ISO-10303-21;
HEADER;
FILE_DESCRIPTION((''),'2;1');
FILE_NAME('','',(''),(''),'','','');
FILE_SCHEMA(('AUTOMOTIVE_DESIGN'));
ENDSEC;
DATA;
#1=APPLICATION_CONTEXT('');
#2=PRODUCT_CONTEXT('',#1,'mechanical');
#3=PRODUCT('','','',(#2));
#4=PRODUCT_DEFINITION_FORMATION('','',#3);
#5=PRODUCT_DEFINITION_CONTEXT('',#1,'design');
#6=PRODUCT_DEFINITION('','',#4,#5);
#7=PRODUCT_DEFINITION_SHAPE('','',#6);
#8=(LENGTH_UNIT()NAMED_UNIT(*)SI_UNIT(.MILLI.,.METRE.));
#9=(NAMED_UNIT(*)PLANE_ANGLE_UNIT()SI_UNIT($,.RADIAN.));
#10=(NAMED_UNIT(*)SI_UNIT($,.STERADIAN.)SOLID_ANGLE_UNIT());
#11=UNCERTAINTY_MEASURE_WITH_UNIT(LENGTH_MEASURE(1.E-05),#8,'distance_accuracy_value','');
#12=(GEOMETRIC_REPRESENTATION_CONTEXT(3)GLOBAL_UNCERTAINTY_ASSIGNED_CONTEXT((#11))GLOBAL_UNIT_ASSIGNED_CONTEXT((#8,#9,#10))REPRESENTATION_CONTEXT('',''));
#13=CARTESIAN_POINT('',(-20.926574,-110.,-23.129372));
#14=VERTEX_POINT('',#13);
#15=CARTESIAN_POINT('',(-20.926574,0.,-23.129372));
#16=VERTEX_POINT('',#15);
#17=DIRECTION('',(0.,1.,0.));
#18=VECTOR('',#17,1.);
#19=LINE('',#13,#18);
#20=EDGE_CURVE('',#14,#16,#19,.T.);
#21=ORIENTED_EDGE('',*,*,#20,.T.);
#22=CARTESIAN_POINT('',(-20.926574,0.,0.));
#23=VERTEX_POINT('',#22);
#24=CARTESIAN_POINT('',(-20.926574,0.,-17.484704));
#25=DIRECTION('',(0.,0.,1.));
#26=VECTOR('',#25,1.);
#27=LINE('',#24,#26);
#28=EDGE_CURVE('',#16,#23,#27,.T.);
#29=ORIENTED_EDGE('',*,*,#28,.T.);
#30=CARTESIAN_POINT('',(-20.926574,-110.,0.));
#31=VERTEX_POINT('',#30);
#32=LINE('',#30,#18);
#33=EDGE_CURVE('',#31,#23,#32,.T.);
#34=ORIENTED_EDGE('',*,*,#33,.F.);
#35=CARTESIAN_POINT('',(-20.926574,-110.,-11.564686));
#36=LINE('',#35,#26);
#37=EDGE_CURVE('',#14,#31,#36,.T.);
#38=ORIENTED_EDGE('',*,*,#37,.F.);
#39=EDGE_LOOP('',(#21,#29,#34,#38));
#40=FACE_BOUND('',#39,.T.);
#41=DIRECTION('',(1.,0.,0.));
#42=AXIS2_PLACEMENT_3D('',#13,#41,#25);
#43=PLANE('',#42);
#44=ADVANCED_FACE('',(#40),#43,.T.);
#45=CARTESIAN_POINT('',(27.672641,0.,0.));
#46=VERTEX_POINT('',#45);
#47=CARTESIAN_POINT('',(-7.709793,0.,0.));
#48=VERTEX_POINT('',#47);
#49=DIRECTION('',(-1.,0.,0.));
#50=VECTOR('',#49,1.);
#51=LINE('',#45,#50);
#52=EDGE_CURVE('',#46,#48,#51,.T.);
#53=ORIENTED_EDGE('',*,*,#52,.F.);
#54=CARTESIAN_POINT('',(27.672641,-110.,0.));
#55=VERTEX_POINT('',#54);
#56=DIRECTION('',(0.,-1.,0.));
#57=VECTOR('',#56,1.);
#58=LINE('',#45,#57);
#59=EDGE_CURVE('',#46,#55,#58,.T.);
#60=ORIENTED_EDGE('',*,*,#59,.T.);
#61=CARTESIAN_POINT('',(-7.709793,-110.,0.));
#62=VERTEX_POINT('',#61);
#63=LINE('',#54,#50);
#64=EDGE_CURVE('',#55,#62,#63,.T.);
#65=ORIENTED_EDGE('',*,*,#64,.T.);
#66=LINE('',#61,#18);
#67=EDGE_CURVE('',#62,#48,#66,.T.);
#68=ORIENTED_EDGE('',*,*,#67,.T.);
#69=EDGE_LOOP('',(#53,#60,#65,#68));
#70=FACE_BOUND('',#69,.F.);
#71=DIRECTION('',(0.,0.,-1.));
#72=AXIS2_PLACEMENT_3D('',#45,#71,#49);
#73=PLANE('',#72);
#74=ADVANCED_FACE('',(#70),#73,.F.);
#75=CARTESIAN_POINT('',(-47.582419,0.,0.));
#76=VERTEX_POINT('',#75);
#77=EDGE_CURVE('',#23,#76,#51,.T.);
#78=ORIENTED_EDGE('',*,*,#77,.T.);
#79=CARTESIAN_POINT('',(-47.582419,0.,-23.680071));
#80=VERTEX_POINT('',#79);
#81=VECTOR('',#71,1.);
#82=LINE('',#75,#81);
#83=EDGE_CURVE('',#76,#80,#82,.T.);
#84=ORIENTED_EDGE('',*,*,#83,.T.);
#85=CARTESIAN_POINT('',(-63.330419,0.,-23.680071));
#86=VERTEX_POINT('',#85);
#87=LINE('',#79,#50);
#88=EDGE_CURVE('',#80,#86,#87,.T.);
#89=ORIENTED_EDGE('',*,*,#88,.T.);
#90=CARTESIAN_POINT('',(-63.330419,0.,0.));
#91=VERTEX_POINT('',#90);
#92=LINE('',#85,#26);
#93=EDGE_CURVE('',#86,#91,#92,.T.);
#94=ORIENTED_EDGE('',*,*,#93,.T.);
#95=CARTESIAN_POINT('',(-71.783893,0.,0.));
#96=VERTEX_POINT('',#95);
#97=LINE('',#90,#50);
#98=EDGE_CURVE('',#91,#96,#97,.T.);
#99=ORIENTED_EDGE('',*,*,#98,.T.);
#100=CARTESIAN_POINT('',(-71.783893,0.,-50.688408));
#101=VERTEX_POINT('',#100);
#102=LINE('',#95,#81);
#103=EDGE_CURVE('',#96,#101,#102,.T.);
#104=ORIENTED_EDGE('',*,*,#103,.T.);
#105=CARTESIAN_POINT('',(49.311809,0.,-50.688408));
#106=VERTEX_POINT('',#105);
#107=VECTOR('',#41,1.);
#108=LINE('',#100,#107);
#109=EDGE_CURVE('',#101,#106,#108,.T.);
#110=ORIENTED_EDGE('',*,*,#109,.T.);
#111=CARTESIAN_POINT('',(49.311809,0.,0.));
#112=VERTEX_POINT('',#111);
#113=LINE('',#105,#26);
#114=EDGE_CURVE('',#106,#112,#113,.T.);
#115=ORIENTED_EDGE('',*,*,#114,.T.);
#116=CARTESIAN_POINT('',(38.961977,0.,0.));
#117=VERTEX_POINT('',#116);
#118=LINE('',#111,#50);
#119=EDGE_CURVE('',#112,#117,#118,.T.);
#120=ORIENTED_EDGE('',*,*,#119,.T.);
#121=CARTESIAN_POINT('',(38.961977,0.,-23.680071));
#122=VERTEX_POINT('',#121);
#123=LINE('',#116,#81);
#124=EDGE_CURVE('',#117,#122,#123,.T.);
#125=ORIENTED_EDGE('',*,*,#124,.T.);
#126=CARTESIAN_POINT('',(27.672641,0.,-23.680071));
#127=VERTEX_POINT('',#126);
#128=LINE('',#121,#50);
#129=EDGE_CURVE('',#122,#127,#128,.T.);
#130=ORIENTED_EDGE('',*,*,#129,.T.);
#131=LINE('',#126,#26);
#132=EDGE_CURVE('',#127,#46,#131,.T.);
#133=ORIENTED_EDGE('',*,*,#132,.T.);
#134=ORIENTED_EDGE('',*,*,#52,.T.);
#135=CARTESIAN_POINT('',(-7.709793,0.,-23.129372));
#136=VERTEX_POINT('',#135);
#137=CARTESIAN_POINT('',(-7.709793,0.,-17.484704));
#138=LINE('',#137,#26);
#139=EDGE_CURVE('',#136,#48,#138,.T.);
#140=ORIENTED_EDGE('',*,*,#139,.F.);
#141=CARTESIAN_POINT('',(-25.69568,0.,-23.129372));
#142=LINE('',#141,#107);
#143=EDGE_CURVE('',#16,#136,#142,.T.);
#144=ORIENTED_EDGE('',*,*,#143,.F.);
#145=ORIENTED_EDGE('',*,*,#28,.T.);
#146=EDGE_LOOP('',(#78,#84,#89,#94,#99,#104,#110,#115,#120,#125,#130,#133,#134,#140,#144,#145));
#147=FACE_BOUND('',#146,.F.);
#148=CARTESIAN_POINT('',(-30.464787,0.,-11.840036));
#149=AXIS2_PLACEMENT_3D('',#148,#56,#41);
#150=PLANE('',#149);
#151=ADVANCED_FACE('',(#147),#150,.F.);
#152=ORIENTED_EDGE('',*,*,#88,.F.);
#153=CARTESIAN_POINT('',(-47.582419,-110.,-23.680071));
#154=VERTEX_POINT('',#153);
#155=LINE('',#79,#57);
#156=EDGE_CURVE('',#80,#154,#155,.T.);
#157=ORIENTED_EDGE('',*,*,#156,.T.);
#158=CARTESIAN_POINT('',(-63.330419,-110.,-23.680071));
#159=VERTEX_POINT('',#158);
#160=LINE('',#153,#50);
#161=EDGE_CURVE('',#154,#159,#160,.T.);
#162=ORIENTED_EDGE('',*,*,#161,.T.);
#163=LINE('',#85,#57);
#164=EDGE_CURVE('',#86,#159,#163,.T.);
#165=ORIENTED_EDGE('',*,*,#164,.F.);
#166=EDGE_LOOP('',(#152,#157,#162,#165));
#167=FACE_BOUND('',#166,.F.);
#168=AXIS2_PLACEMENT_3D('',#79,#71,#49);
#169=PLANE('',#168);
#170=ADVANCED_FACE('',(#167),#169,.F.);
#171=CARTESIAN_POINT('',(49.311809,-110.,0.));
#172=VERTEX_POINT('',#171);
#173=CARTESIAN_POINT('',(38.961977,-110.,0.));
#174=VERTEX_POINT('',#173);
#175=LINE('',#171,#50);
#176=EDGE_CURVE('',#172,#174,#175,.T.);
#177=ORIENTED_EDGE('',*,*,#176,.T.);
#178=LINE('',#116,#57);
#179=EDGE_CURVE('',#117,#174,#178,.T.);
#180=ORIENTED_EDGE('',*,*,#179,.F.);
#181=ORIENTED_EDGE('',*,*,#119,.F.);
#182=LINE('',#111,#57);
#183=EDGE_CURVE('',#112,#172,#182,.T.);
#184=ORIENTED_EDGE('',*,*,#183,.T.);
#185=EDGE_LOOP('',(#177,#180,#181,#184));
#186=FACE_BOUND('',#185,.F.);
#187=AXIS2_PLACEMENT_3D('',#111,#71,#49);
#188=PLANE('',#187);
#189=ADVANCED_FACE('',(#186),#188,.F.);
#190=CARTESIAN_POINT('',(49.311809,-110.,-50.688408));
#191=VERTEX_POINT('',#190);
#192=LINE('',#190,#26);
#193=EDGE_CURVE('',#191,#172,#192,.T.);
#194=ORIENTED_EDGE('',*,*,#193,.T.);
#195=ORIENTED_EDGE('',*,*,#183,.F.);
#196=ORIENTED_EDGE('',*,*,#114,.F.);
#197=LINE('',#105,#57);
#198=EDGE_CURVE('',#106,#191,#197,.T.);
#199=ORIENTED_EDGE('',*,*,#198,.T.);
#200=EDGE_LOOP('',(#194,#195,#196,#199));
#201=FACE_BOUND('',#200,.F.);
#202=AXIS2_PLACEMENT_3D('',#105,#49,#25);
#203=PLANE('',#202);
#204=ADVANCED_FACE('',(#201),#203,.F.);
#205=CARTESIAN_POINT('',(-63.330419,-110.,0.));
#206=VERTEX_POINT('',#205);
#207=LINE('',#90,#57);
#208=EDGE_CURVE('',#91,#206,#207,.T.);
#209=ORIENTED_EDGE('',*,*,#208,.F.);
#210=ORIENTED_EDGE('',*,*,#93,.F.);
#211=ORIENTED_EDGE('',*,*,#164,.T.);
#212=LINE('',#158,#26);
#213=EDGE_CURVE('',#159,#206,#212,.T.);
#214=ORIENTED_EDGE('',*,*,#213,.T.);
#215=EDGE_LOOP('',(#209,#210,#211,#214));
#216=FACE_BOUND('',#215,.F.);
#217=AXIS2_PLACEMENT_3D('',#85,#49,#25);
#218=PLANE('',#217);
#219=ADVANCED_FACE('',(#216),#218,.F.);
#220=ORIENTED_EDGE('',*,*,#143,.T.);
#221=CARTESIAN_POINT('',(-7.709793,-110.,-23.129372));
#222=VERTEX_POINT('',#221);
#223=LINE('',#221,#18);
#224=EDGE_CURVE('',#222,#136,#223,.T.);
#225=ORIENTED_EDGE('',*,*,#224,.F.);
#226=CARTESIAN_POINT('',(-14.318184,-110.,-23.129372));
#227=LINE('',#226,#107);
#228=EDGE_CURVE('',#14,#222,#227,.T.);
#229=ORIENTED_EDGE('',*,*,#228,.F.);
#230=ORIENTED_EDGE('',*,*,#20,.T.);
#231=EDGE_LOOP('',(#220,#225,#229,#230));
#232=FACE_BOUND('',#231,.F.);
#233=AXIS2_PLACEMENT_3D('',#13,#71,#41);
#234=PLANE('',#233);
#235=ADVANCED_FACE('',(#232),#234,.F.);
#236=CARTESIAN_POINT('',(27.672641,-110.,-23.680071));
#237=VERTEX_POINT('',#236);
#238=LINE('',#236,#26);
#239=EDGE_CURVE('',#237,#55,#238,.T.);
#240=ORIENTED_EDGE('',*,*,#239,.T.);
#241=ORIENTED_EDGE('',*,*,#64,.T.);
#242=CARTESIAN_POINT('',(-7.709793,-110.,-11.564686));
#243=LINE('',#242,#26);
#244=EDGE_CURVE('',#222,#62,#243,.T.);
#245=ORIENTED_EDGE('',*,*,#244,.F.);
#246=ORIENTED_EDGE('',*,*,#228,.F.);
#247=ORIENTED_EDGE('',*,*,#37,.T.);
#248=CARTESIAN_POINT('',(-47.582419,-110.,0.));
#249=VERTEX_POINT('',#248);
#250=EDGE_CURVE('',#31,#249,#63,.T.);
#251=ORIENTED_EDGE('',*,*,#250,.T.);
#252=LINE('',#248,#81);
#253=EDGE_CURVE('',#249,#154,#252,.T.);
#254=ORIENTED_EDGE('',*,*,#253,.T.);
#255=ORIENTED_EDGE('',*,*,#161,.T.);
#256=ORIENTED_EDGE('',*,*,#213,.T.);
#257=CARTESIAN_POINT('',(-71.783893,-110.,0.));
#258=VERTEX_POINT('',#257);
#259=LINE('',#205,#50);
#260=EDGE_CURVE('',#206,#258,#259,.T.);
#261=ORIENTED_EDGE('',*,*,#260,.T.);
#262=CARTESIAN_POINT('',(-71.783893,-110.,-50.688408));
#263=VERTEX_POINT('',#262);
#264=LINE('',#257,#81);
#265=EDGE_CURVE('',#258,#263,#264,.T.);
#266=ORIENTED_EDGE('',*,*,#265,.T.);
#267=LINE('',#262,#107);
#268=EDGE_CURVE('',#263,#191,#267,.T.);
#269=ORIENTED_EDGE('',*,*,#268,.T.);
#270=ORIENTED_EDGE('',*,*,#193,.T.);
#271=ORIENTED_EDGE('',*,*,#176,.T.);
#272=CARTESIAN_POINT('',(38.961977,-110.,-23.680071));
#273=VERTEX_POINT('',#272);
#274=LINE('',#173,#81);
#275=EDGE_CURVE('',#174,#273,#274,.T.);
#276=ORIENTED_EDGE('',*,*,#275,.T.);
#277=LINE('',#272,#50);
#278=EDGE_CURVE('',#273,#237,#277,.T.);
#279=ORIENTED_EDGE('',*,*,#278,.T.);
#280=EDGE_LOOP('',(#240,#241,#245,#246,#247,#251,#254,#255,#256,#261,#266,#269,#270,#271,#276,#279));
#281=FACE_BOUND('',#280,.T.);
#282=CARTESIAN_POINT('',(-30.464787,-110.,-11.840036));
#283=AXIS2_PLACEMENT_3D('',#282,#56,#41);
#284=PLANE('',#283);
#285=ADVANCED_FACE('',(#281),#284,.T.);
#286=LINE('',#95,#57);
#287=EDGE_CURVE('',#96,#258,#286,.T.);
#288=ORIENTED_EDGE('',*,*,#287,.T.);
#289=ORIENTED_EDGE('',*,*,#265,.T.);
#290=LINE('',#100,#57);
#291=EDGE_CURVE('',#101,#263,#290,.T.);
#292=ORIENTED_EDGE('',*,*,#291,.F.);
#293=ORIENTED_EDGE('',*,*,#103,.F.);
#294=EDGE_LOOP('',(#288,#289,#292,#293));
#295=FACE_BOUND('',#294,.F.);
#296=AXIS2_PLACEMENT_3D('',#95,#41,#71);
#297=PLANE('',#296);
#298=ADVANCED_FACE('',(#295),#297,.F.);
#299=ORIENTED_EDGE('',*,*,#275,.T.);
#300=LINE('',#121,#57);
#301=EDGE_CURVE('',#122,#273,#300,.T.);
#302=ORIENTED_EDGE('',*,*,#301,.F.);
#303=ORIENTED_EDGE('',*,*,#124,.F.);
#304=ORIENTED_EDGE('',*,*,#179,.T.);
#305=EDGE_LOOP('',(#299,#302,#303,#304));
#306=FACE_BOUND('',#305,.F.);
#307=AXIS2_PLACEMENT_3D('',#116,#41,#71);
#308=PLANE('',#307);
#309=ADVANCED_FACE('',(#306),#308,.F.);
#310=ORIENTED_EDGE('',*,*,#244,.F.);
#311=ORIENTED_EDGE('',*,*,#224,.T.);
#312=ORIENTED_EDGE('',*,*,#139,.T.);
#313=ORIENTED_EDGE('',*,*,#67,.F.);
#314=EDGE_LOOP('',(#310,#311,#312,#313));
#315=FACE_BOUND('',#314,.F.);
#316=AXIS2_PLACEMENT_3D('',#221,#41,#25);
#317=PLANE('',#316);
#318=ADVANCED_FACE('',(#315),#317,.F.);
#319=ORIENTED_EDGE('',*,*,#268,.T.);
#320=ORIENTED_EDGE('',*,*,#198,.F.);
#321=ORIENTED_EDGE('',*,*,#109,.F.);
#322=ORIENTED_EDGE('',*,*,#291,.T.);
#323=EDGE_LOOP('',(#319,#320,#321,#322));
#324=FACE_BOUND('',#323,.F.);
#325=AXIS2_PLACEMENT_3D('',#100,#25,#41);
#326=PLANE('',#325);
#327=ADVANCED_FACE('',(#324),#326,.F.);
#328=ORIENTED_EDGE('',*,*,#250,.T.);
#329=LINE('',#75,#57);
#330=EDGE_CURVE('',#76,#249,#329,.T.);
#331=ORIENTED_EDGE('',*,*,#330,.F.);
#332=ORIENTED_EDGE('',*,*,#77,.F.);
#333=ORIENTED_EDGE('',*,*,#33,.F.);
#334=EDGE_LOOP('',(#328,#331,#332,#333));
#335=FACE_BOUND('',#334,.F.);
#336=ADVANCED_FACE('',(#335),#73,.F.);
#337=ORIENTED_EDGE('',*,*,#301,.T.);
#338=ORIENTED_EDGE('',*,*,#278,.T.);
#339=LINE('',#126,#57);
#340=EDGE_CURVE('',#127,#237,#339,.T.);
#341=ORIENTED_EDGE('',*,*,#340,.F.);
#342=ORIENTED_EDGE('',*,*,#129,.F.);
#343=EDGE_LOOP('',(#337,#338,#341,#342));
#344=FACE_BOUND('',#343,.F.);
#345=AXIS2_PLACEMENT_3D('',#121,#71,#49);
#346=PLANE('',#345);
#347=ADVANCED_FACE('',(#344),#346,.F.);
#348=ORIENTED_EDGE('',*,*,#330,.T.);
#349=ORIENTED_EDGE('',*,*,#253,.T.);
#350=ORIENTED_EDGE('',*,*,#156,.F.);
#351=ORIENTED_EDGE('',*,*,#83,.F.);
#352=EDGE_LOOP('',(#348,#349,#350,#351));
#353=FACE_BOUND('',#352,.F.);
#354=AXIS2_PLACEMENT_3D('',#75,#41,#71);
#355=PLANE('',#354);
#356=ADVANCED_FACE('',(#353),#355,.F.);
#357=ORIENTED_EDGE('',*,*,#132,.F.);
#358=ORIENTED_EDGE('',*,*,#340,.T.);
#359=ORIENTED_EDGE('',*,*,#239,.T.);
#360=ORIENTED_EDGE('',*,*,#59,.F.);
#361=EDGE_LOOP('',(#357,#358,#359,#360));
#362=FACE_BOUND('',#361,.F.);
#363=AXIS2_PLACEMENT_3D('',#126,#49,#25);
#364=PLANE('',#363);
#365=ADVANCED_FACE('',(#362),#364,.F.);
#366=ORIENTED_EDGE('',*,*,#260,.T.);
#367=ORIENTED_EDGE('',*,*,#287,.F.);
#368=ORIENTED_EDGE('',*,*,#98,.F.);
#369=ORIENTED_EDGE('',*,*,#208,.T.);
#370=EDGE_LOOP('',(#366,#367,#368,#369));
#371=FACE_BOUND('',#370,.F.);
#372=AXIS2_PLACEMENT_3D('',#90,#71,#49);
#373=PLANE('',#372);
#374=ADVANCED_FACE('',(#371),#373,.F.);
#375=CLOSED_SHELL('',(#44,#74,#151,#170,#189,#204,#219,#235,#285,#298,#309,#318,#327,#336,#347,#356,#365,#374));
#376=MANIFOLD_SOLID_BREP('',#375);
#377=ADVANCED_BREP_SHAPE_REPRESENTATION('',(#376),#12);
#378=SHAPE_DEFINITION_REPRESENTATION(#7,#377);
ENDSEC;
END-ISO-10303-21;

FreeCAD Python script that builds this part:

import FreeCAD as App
import Part
import Sketcher
from FreeCAD import Vector

doc = App.newDocument("Part")
body = doc.addObject("PartDesign::Body", "Body")

# Sketch on XZ plane
sketch1 = body.newObject("Sketcher::SketchObject", "Sketch")
sketch1.AttachmentSupport = (doc.getObject("XZ_Plane"), [""])
sketch1.MapMode = "FlatFace"
sketch1.addGeometry(Part.LineSegment(Vector(-48, 0, 0), Vector(-48, -24, 0)), False)
sketch1.addGeometry(Part.LineSegment(Vector(-48, -24, 0), Vector(-63, -24, 0)), False)
sketch1.addGeometry(Part.LineSegment(Vector(-63, -24, 0), Vector(-63, 0, 0)), False)
sketch1.addGeometry(Part.LineSegment(Vector(-63, 0, 0), Vector(-72, 0, 0)), False)
sketch1.addGeometry(Part.LineSegment(Vector(-72, 0, 0), Vector(-72, -51, 0)), False)
sketch1.addGeometry(Part.LineSegment(Vector(-72, -51, 0), Vector(49, -51, 0)), False)
sketch1.addGeometry(Part.LineSegment(Vector(49, -51, 0), Vector(49, 0, 0)), False)
sketch1.addGeometry(Part.LineSegment(Vector(49, 0, 0), Vector(39, 0, 0)), False)
sketch1.addGeometry(Part.LineSegment(Vector(39, 0, 0), Vector(39, -24, 0)), False)
sketch1.addGeometry(Part.LineSegment(Vector(39, -24, 0), Vector(28, -24, 0)), False)
sketch1.addGeometry(Part.LineSegment(Vector(28, -24, 0), Vector(28, 0, 0)), False)
sketch1.addGeometry(Part.LineSegment(Vector(28, 0, 0), Vector(-48, 0, 0)), False)
sketch1.addConstraint(Sketcher.Constraint("Coincident", 0, 2, 1, 1))
sketch1.addConstraint(Sketcher.Constraint("Coincident", 1, 2, 2, 1))
sketch1.addConstraint(Sketcher.Constraint("Coincident", 2, 2, 3, 1))
sketch1.addConstraint(Sketcher.Constraint("Coincident", 3, 2, 4, 1))
sketch1.addConstraint(Sketcher.Constraint("Coincident", 4, 2, 5, 1))
sketch1.addConstraint(Sketcher.Constraint("Coincident", 5, 2, 6, 1))
sketch1.addConstraint(Sketcher.Constraint("Coincident", 6, 2, 7, 1))
sketch1.addConstraint(Sketcher.Constraint("Coincident", 7, 2, 8, 1))
sketch1.addConstraint(Sketcher.Constraint("Coincident", 8, 2, 9, 1))
sketch1.addConstraint(Sketcher.Constraint("Coincident", 9, 2, 10, 1))
sketch1.addConstraint(Sketcher.Constraint("Coincident", 10, 2, 11, 1))
sketch1.addConstraint(Sketcher.Constraint("Coincident", 11, 2, 0, 1))
sketch1.addConstraint(Sketcher.Constraint("Vertical", 0))
sketch1.addConstraint(Sketcher.Constraint("Horizontal", 1))
sketch1.addConstraint(Sketcher.Constraint("Vertical", 2))
sketch1.addConstraint(Sketcher.Constraint("Horizontal", 3))
sketch1.addConstraint(Sketcher.Constraint("Vertical", 4))
sketch1.addConstraint(Sketcher.Constraint("Horizontal", 5))
sketch1.addConstraint(Sketcher.Constraint("Vertical", 6))
sketch1.addConstraint(Sketcher.Constraint("Horizontal", 7))
sketch1.addConstraint(Sketcher.Constraint("Vertical", 8))
sketch1.addConstraint(Sketcher.Constraint("Horizontal", 9))
sketch1.addConstraint(Sketcher.Constraint("Vertical", 10))
sketch1.addConstraint(Sketcher.Constraint("Horizontal", 11))
sketch1.addConstraint(Sketcher.Constraint("PointOnObject", 2, 2, -1))
sketch1.addConstraint(Sketcher.Constraint("PointOnObject", 6, 2, -1))
sketch1.addConstraint(Sketcher.Constraint("PointOnObject", 10, 2, -1))
sketch1.addConstraint(Sketcher.Constraint("Horizontal", 1, 2, 8, 2))
sketch1.addConstraint(Sketcher.Constraint("DistanceX", 1, 2, 1, 1, 15.748))
sketch1.addConstraint(Sketcher.Constraint("DistanceX", 11, 2, 11, 1, 75.25506))
sketch1.addConstraint(Sketcher.Constraint("DistanceY", 0, 2, 0, 1, 23.680071))
sketch1.addConstraint(Sketcher.Constraint("DistanceY", 4, 2, 4, 1, 50.688408))
sketch1.addConstraint(Sketcher.Constraint("DistanceX", 3, 2, 3, 1, 8.453473))
sketch1.addConstraint(Sketcher.Constraint("DistanceX", 5, 1, 5, 2, 121.095702))
sketch1.addConstraint(Sketcher.Constraint("DistanceX", 7, 2, 7, 1, 10.349832))
sketch1.addConstraint(Sketcher.Constraint("DistanceX", 0, 2, -1, 1, 47.582419))
pad1 = body.newObject("PartDesign::Pad", "Pad")
pad1.Profile = sketch1
pad1.Length = 110

# Sketch on XZ plane
sketch2 = body.newObject("Sketcher::SketchObject", "Sketch001")
sketch2.AttachmentSupport = (doc.getObject("XZ_Plane"), [""])
sketch2.MapMode = "FlatFace"
sketch2.AttachmentOffset = App.Placement(Vector(0, 0, 110), App.Rotation())
sketch2.addGeometry(Part.LineSegment(Vector(-21, 0, 0), Vector(-21, -23, 0)), False)
sketch2.addGeometry(Part.LineSegment(Vector(-21, -23, 0), Vector(-8, -23, 0)), False)
sketch2.addGeometry(Part.LineSegment(Vector(-8, -23, 0), Vector(-8, 0, 0)), False)
sketch2.addGeometry(Part.LineSegment(Vector(-8, 0, 0), Vector(-21, 0, 0)), False)
sketch2.addConstraint(Sketcher.Constraint("Coincident", 0, 2, 1, 1))
sketch2.addConstraint(Sketcher.Constraint("Coincident", 1, 2, 2, 1))
sketch2.addConstraint(Sketcher.Constraint("Coincident", 2, 2, 3, 1))
sketch2.addConstraint(Sketcher.Constraint("Coincident", 3, 2, 0, 1))
sketch2.addConstraint(Sketcher.Constraint("Vertical", 0))
sketch2.addConstraint(Sketcher.Constraint("Horizontal", 1))
sketch2.addConstraint(Sketcher.Constraint("Vertical", 2))
sketch2.addConstraint(Sketcher.Constraint("Horizontal", 3))
sketch2.addConstraint(Sketcher.Constraint("PointOnObject", 2, 2, -1))
sketch2.addConstraint(Sketcher.Constraint("DistanceX", 1, 1, 1, 2, 13.216781))
sketch2.addConstraint(Sketcher.Constraint("DistanceY", 0, 2, 0, 1, 23.129372))
sketch2.addConstraint(Sketcher.Constraint("DistanceX", 0, 2, -1, 1, 20.926574))
pocket1 = body.newObject("PartDesign::Pocket", "Pocket")
pocket1.Profile = sketch2
pocket1.Length = 129

doc.recompute()
